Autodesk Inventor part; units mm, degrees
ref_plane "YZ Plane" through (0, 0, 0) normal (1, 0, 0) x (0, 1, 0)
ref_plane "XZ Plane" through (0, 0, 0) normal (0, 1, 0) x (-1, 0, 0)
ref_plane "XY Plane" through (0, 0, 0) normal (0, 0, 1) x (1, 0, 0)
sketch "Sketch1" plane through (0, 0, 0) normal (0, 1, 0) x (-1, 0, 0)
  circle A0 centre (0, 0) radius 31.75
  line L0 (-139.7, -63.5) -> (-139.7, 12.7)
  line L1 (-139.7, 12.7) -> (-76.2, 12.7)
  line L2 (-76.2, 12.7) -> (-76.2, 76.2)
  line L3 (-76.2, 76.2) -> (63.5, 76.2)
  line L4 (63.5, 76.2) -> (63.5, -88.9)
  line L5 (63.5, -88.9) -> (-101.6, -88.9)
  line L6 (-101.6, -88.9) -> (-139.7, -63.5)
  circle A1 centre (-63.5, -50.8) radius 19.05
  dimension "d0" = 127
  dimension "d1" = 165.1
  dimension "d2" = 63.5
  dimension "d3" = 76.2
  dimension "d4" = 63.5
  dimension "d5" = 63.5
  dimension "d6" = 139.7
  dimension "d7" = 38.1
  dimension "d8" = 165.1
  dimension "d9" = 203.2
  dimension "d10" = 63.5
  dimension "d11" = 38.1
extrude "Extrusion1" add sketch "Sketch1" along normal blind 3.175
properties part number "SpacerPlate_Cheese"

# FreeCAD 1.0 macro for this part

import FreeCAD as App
import Part
import Sketcher
Q = App.Units.Quantity

doc = App.newDocument("Part")
body = doc.addObject("PartDesign::Body", "Body")

# Sketch on XZ plane
sketch1 = body.newObject("Sketcher::SketchObject", "Sketch")
sketch1.AttachmentSupport = (doc.getObject("XZ_Plane"), [""])
sketch1.MapMode = "FlatFace"
sketch1.addGeometry([
    Part.LineSegment(App.Vector(140, 13, 0), App.Vector(140, -64, 0)),  # 0
    Part.LineSegment(App.Vector(140, -64, 0), App.Vector(102, -89, 0)),  # 1
    Part.LineSegment(App.Vector(102, -89, 0), App.Vector(-64, -89, 0)),  # 2
    Part.LineSegment(App.Vector(-64, -89, 0), App.Vector(-64, 76, 0)),  # 3
    Part.LineSegment(App.Vector(-64, 76, 0), App.Vector(76, 76, 0)),  # 4
    Part.LineSegment(App.Vector(76, 76, 0), App.Vector(76, 13, 0)),  # 5
    Part.LineSegment(App.Vector(76, 13, 0), App.Vector(140, 13, 0)),  # 6
    Part.Circle(App.Vector(64, -51, 0), App.Vector(0, 0, 1), 19),  # 7
    Part.Circle(App.Vector(0, 0, 0), App.Vector(0, 0, 1), 32),  # 8
], False)
sketch1.addConstraint([
    Sketcher.Constraint("Coincident", 0, 2, 1, 1),
    Sketcher.Constraint("Coincident", 1, 2, 2, 1),
    Sketcher.Constraint("Coincident", 2, 2, 3, 1),
    Sketcher.Constraint("Coincident", 3, 2, 4, 1),
    Sketcher.Constraint("Coincident", 4, 2, 5, 1),
    Sketcher.Constraint("Coincident", 5, 2, 6, 1),
    Sketcher.Constraint("Coincident", 6, 2, 0, 1),
    Sketcher.Constraint("Vertical", 0),
    Sketcher.Constraint("Horizontal", 2),
    Sketcher.Constraint("Vertical", 3),
    Sketcher.Constraint("Horizontal", 4),
    Sketcher.Constraint("Vertical", 5),
    Sketcher.Constraint("Horizontal", 6),
    Sketcher.Constraint("Coincident", 8, 3, -1, 1),
    Sketcher.Constraint("Equal", 2, 3),
    Sketcher.Constraint("Equal", 6, 5),
    Sketcher.Constraint("Diameter", 7, Q("1.5 in")),
    Sketcher.Constraint("Diameter", 8, Q("2.5 in")),
    Sketcher.Constraint("DistanceY", 0, 2, 0, 1, Q("3 in")),
    Sketcher.Constraint("DistanceX", 2, 2, 2, 1, Q("6.5 in")),
    Sketcher.Constraint("DistanceX", 4, 1, 4, 2, Q("5.5 in")),
    Sketcher.Constraint("DistanceX", 6, 1, 6, 2, Q("2.5 in")),
    Sketcher.Constraint("DistanceY", -1, 1, 3, 2, Q("3 in")),
    Sketcher.Constraint("DistanceX", -1, 1, 4, 2, Q("3 in")),
    Sketcher.Constraint("DistanceX", 7, 3, 0, 2, Q("3 in")),
    Sketcher.Constraint("DistanceY", 7, 3, 3, 2, Q("5 in")),
])
pad1 = body.newObject("PartDesign::Pad", "Pad")
pad1.Profile = sketch1
pad1.Length = Q("0.125 in")
pad1.Reversed = True

doc.recompute()
